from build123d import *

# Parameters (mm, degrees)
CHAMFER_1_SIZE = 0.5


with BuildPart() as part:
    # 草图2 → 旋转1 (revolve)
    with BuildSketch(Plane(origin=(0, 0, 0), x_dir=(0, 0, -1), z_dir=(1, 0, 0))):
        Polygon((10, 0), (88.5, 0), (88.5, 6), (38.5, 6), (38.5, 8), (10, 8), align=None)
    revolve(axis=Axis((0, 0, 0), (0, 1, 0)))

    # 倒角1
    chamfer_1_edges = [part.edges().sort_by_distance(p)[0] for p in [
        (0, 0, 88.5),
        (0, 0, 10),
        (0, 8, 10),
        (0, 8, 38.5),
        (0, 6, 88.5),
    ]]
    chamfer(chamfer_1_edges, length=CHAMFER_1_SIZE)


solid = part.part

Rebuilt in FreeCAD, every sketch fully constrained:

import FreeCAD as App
import Part
import Sketcher

V = App.Vector


def edges_at(feature, points):
    """Names of the edges that pass closest to the given points."""
    edges = feature.Shape.Edges
    near = lambda p: min(range(len(edges)), key=lambda i: edges[i].distToShape(Part.Vertex(*p))[0])
    return sorted({f"Edge{near(p) + 1}" for p in points})


def add_polygon(sketch, points):
    """Adds a closed chain of lines whose ends are joined by coincident constraints."""
    first, n = sketch.GeometryCount, len(points)
    for a, b in zip(points, points[1:] + points[:1]):
        sketch.addGeometry(Part.LineSegment(App.Vector(*a, 0), App.Vector(*b, 0)), False)
    for i in range(n):
        sketch.addConstraint(Sketcher.Constraint("Coincident", first + i, 2, first + (i + 1) % n, 1))

doc = App.newDocument("Part")
body = doc.addObject("PartDesign::Body", "Body")

sketch1 = doc.addObject("Sketcher::SketchObject", "Sketch")
body.addObject(sketch1)
sketch1.AttachmentSupport = (doc.YZ_Plane, [""])
sketch1.MapMode = "FlatFace"
add_polygon(sketch1, [(0, -10), (0, -88.5), (6, -88.5), (6, -38.5), (8, -38.5), (8, -10)])
sketch1.addConstraint([
    Sketcher.Constraint("Vertical", 0),
    Sketcher.Constraint("Horizontal", 1),
    Sketcher.Constraint("Vertical", 2),
    Sketcher.Constraint("Horizontal", 3),
    Sketcher.Constraint("Vertical", 4),
    Sketcher.Constraint("Horizontal", 5),
    Sketcher.Constraint("PointOnObject", 0, 2, -2),
    Sketcher.Constraint("DistanceX", 1, 1, 1, 2, 6.0),
    Sketcher.Constraint("DistanceX", 3, 1, 3, 2, 2.0),
    Sketcher.Constraint("DistanceY", 2, 1, 2, 2, 50.0),
    Sketcher.Constraint("DistanceY", 0, 2, 0, 1, 78.5),
    Sketcher.Constraint("DistanceY", 4, 2, -1, 1, 10.0),
])
revolution = doc.addObject("PartDesign::Revolution", "Revolution")
body.addObject(revolution)
revolution.Profile = sketch1
revolution.ReferenceAxis = (sketch1, ["H_Axis"])
revolution.Angle = 360
doc.recompute()

chamfer = doc.addObject("PartDesign::Chamfer", "Chamfer")
body.addObject(chamfer)
chamfer.Base = (revolution, edges_at(revolution, [
    (0, 0, 88.5),
    (0, 0, 10),
    (0, 8, 10),
    (0, 8, 38.5),
    (0, 6, 88.5),
]))
chamfer.Size = 0.5

doc.recompute()
